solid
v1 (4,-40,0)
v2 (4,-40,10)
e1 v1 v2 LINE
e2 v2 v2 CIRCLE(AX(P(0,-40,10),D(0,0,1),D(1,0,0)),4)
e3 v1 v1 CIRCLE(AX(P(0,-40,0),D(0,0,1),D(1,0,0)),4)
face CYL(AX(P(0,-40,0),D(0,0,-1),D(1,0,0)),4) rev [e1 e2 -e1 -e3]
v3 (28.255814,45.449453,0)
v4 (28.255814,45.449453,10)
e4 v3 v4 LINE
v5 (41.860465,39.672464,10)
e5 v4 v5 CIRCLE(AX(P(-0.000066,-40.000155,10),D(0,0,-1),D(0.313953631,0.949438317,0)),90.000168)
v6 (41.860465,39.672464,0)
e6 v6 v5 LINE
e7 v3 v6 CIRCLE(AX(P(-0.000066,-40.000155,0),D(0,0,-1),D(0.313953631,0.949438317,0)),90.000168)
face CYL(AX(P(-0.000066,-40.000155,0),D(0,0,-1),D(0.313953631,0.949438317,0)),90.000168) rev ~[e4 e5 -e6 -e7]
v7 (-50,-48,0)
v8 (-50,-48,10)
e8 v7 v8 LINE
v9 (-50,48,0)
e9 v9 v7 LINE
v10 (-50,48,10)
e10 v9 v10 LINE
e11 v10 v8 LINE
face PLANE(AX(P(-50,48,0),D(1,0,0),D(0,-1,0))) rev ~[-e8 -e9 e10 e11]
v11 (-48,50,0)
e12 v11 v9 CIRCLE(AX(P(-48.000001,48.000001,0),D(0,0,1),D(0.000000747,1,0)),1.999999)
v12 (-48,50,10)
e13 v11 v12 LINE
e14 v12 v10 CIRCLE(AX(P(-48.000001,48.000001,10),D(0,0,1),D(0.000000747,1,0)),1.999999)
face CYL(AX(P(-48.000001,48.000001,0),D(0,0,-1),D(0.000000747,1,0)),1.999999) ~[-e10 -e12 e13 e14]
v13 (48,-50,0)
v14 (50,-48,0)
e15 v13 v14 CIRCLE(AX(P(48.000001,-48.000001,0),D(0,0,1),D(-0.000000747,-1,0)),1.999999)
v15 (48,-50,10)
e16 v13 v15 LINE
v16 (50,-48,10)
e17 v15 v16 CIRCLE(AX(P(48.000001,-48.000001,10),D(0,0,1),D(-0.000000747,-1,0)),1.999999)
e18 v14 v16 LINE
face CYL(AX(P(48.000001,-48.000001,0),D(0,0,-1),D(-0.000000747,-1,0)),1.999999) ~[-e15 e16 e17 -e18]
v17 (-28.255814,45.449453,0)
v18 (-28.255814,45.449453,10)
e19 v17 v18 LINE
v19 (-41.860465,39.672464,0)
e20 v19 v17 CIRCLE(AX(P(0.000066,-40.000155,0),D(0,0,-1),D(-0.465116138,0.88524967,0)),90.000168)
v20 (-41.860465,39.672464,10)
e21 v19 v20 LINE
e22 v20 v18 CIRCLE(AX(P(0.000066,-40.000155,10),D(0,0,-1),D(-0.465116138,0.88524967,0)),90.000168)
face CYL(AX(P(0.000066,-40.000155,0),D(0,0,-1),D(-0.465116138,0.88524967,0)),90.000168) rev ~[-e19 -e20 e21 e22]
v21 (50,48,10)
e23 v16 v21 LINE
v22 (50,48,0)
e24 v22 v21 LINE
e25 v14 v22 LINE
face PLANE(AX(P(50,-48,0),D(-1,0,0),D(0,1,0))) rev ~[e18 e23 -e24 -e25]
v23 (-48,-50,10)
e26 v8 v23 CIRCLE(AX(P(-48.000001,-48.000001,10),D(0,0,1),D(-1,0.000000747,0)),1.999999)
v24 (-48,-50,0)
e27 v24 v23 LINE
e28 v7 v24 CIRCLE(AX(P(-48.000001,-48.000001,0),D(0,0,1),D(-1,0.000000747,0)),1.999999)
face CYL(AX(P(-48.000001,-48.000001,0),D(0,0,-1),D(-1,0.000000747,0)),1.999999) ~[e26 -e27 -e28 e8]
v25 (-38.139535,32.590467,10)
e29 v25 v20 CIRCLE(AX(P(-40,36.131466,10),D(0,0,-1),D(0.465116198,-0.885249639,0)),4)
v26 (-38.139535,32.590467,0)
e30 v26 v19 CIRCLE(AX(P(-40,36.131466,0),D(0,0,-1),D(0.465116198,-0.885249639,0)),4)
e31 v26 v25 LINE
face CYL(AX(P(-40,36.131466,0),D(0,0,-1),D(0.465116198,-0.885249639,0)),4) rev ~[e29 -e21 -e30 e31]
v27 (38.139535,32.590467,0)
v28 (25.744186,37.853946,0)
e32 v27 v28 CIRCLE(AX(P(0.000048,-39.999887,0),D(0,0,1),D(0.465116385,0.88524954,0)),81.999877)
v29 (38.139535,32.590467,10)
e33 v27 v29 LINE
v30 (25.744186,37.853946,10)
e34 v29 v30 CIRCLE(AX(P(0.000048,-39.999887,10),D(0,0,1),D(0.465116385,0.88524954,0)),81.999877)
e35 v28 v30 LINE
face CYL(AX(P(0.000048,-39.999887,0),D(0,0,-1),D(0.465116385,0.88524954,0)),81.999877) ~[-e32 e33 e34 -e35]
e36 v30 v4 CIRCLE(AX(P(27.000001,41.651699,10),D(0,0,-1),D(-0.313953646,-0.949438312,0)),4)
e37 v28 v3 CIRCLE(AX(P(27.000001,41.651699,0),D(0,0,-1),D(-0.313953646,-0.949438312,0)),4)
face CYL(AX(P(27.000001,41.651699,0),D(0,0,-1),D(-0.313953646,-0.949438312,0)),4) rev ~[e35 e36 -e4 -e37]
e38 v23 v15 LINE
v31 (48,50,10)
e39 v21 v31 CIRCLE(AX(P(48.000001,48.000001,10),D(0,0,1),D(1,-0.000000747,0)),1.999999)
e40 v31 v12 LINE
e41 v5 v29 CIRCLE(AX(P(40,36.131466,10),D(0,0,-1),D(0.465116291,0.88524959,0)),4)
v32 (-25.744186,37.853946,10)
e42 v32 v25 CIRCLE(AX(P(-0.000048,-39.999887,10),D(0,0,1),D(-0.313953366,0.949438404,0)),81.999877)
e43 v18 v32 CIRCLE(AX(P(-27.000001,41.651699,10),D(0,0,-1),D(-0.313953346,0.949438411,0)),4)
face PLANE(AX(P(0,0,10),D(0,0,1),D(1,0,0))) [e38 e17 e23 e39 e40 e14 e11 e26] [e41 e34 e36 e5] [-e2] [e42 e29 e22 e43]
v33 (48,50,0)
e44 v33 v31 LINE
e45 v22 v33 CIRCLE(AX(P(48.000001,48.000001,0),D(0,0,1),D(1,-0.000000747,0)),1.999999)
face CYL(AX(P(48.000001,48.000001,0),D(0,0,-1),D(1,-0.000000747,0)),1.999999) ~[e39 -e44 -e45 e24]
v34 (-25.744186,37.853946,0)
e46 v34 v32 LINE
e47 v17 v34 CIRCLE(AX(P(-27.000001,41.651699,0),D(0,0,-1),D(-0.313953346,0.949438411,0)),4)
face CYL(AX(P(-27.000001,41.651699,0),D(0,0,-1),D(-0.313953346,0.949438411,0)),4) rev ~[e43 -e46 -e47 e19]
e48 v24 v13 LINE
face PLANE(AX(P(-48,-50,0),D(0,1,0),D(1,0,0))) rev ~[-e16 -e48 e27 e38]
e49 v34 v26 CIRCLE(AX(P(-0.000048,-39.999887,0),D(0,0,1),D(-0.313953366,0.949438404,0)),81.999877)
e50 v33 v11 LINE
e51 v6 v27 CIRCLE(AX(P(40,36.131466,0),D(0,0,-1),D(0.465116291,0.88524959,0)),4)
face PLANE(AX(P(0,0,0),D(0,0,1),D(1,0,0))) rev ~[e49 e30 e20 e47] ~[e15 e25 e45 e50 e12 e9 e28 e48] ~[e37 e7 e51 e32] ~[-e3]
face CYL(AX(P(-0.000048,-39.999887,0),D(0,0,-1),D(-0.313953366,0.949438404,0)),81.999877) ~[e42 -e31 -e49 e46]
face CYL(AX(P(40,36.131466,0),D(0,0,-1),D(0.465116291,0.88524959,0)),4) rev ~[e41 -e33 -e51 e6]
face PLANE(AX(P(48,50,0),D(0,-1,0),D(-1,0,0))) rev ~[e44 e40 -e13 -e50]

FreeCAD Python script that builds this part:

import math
import FreeCAD as App
import Part
import Sketcher

V = App.Vector
Q = App.Units.Quantity

doc = App.newDocument("Part")
params = doc.addObject("Spreadsheet::Sheet", "Params")
for row, (alias, value) in enumerate([
    ("sketch1_diameter", "8 mm"),
    ("sketch1_radius", "1.999999 mm"),
    ("sketch1_radius2", "1.999999 mm"),
    ("sketch1_radius3", "1.999999 mm"),
    ("sketch1_radius4", "1.999999 mm"),
    ("pad1_length", "10 mm"),
], start=1):
    params.set(f"A{row}", alias)
    params.set(f"B{row}", "=" + value)
    params.setAlias(f"B{row}", alias)

body = doc.addObject("PartDesign::Body", "Body")

# Sketch on XY plane
sketch1 = body.newObject("Sketcher::SketchObject", "Sketch")
sketch1.AttachmentSupport = (doc.getObject("XY_Plane"), [""])
sketch1.MapMode = "FlatFace"
sketch1.addGeometry([
    Part.ArcOfCircle(Part.Circle(V(48.000001, 48.000001, 0), V(0, 0, 1), 1.999999), math.radians(-0.000043), math.radians(90.000043)),  # 0
    Part.LineSegment(V(48, 50, 0), V(-48, 50, 0)),  # 1
    Part.ArcOfCircle(Part.Circle(V(-48.000001, 48.000001, 0), V(0, 0, 1), 1.999999), math.radians(89.999957), math.radians(180.000043)),  # 2
    Part.LineSegment(V(-50, 48, 0), V(-50, -48, 0)),  # 3
    Part.ArcOfCircle(Part.Circle(V(-48.000001, -48.000001, 0), V(0, 0, 1), 1.999999), math.radians(179.999957), math.radians(270.000043)),  # 4
    Part.LineSegment(V(-48, -50, 0), V(48, -50, 0)),  # 5
    Part.ArcOfCircle(Part.Circle(V(48.000001, -48.000001, 0), V(0, 0, 1), 1.999999), math.radians(-90.000043), math.radians(0.000043)),  # 6
    Part.LineSegment(V(50, -48, 0), V(50, 48, 0)),  # 7
    Part.Circle(V(0, -40, 0), V(0, 0, 1), 4),  # 8
    Part.ArcOfCircle(Part.Circle(V(-40, 36.131466, 0), V(0, 0, 1), 4), math.radians(117.717748), math.radians(297.717742)),  # 9
    Part.ArcOfCircle(Part.Circle(V(0.000066, -40.000155, 0), V(0, 0, 1), 90.000168), math.radians(108.297657), math.radians(117.717739)),  # 10
    Part.ArcOfCircle(Part.Circle(V(-27.000001, 41.651699, 0), V(0, 0, 1), 4), math.radians(-71.702342), math.radians(108.29764)),  # 11
    Part.ArcOfCircle(Part.Circle(V(-0.000048, -39.999887, 0), V(0, 0, 1), 81.999877), math.radians(108.297641), math.radians(117.717755)),  # 12
    Part.ArcOfCircle(Part.Circle(V(0.000048, -39.999887, 0), V(0, 0, 1), 81.999877), math.radians(62.282245), math.radians(71.702359)),  # 13
    Part.ArcOfCircle(Part.Circle(V(27.000001, 41.651699, 0), V(0, 0, 1), 4), math.radians(71.70236), math.radians(251.702342)),  # 14
    Part.ArcOfCircle(Part.Circle(V(-0.000066, -40.000155, 0), V(0, 0, 1), 90.000168), math.radians(62.282261), math.radians(71.702343)),  # 15
    Part.ArcOfCircle(Part.Circle(V(40, 36.131466, 0), V(0, 0, 1), 4), math.radians(-117.717742), math.radians(62.282252)),  # 16
], False)
sketch1.addConstraint([
    Sketcher.Constraint("Coincident", 0, 2, 1, 1),
    Sketcher.Constraint("Coincident", 1, 2, 2, 1),
    Sketcher.Constraint("Coincident", 2, 2, 3, 1),
    Sketcher.Constraint("Coincident", 3, 2, 4, 1),
    Sketcher.Constraint("Coincident", 4, 2, 5, 1),
    Sketcher.Constraint("Coincident", 5, 2, 6, 1),
    Sketcher.Constraint("Coincident", 6, 2, 7, 1),
    Sketcher.Constraint("Coincident", 7, 2, 0, 1),
    Sketcher.Constraint("Coincident", 9, 1, 10, 2),
    Sketcher.Constraint("Coincident", 10, 1, 11, 2),
    Sketcher.Constraint("Coincident", 11, 1, 12, 1),
    Sketcher.Constraint("Coincident", 12, 2, 9, 2),
    Sketcher.Constraint("Coincident", 13, 2, 14, 2),
    Sketcher.Constraint("Coincident", 14, 1, 15, 2),
    Sketcher.Constraint("Coincident", 15, 1, 16, 2),
    Sketcher.Constraint("Coincident", 16, 1, 13, 1),
    Sketcher.Constraint("Horizontal", 1),
    Sketcher.Constraint("Vertical", 3),
    Sketcher.Constraint("Horizontal", 5),
    Sketcher.Constraint("Vertical", 7),
    Sketcher.Constraint("PointOnObject", 8, 3, -2),
    Sketcher.Constraint("Diameter", 8, Q("8 mm")),
    Sketcher.Constraint("Radius", 0, Q("1.999999 mm")),
    Sketcher.Constraint("Radius", 2, Q("1.999999 mm")),
    Sketcher.Constraint("Radius", 4, Q("1.999999 mm")),
    Sketcher.Constraint("Radius", 6, Q("1.999999 mm")),
    Sketcher.Constraint("Radius", 9, Q("4 mm")),
    Sketcher.Constraint("Radius", 11, Q("4 mm")),
    Sketcher.Constraint("Radius", 14, Q("4 mm")),
    Sketcher.Constraint("Radius", 16, Q("4 mm")),
    Sketcher.Constraint("DistanceX", 1, 2, 1, 1, Q("96 mm")),
    Sketcher.Constraint("DistanceX", 5, 1, 5, 2, Q("96 mm")),
    Sketcher.Constraint("DistanceY", 3, 2, 3, 1, Q("96 mm")),
    Sketcher.Constraint("DistanceY", 7, 1, 7, 2, Q("96 mm")),
    Sketcher.Constraint("DistanceX", -1, 1, 0, 3, Q("48.000001 mm")),
    Sketcher.Constraint("DistanceY", -1, 1, 0, 3, Q("48.000001 mm")),
    Sketcher.Constraint("DistanceX", 2, 3, -1, 1, Q("48.000001 mm")),
    Sketcher.Constraint("DistanceY", 4, 3, -1, 1, Q("48.000001 mm")),
    Sketcher.Constraint("DistanceY", 8, 3, -1, 1, Q("40 mm")),
    Sketcher.Constraint("DistanceX", 9, 3, -1, 1, Q("40 mm")),
    Sketcher.Constraint("DistanceX", 11, 3, -1, 1, Q("27.000001 mm")),
    Sketcher.Constraint("DistanceX", -1, 1, 14, 3, Q("27.000001 mm")),
    Sketcher.Constraint("DistanceX", -1, 1, 16, 3, Q("40 mm")),
    Sketcher.Constraint("DistanceX", -1, 1, 0, 2, Q("48 mm")),
    Sketcher.Constraint("DistanceY", -1, 1, 2, 2, Q("48 mm")),
    Sketcher.Constraint("DistanceX", 4, 2, -1, 1, Q("48 mm")),
    Sketcher.Constraint("DistanceY", 6, 2, -1, 1, Q("48 mm")),
    Sketcher.Constraint("Radius", 10, Q("90.000168 mm")),
    Sketcher.Constraint("Radius", 15, Q("90.000168 mm")),
    Sketcher.Constraint("Radius", 12, Q("81.999877 mm")),
    Sketcher.Constraint("Radius", 13, Q("81.999877 mm")),
    Sketcher.Constraint("DistanceY", 9, 3, 9, 1, Q("3.540998 mm")),
    Sketcher.Constraint("DistanceY", 12, 2, 9, 3, Q("3.540999 mm")),
    Sketcher.Constraint("DistanceY", 16, 3, 15, 1, Q("3.540998 mm")),
    Sketcher.Constraint("DistanceY", 16, 1, 16, 3, Q("3.540999 mm")),
    Sketcher.Constraint("DistanceY", -1, 1, 11, 3, Q("41.651699 mm")),
    Sketcher.Constraint("DistanceY", -1, 1, 14, 3, Q("41.651699 mm")),
    Sketcher.Constraint("DistanceY", 10, 3, 9, 3, Q("76.131621 mm")),
    Sketcher.Constraint("DistanceY", 10, 3, 13, 3, Q("0.000268 mm")),
    Sketcher.Constraint("DistanceX", 9, 1, 10, 1, Q("13.604651 mm")),
    Sketcher.Constraint("DistanceY", 9, 3, 11, 1, Q("1.72248 mm")),
    Sketcher.Constraint("DistanceY", 16, 3, 13, 2, Q("1.72248 mm")),
    Sketcher.Constraint("DistanceX", 13, 2, 14, 1, Q("2.511628 mm")),
])
sketch1.setExpression("Constraints[21]", "Params.sketch1_diameter")
sketch1.setExpression("Constraints[22]", "Params.sketch1_radius")
sketch1.setExpression("Constraints[23]", "Params.sketch1_radius2")
sketch1.setExpression("Constraints[24]", "Params.sketch1_radius3")
sketch1.setExpression("Constraints[25]", "Params.sketch1_radius4")
pad1 = body.newObject("PartDesign::Pad", "Pad")
pad1.Profile = sketch1
pad1.setExpression("Length", "Params.pad1_length")

doc.recompute()
